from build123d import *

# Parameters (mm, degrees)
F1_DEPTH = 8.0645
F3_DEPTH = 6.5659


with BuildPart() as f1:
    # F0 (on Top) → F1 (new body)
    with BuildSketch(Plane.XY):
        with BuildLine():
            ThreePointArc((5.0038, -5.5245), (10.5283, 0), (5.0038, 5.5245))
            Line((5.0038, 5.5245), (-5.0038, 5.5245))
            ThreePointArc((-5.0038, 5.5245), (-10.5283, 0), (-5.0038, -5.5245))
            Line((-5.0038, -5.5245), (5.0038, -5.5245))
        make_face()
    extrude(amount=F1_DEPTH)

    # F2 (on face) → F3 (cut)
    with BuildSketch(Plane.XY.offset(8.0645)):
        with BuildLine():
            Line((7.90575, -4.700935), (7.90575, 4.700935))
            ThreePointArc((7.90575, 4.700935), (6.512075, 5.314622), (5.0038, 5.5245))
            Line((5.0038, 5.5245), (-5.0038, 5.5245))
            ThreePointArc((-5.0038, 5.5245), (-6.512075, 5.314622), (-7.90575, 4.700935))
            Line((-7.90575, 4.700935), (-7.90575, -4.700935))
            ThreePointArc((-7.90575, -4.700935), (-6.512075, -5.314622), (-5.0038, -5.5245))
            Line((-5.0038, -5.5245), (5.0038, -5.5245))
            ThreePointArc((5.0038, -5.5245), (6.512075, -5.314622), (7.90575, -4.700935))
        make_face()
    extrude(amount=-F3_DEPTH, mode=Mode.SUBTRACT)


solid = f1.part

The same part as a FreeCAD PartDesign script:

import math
import FreeCAD as App
import Part
import Sketcher

V = App.Vector
Q = App.Units.Quantity

doc = App.newDocument("Part")
body = doc.addObject("PartDesign::Body", "Body")

# Sketch on XY plane
sketch1 = body.newObject("Sketcher::SketchObject", "Sketch")
sketch1.AttachmentSupport = (doc.getObject("XY_Plane"), [""])
sketch1.MapMode = "FlatFace"
sketch1.addGeometry([
    Part.ArcOfCircle(Part.Circle(V(5, 0, 0), V(0, 0, 1), 6), math.radians(-90), math.radians(90)),
    Part.LineSegment(V(5, 6, 0), V(-5, 6, 0)),
    Part.ArcOfCircle(Part.Circle(V(-5, 0, 0), V(0, 0, 1), 6), math.radians(90), math.radians(270)),
    Part.LineSegment(V(-5, -6, 0), V(5, -6, 0)),
], False)
sketch1.addConstraint([
    Sketcher.Constraint("Tangent", 0, 2, 1, 1),
    Sketcher.Constraint("Tangent", 1, 2, 2, 1),
    Sketcher.Constraint("Tangent", 2, 2, 3, 1),
    Sketcher.Constraint("Tangent", 3, 2, 0, 1),
    Sketcher.Constraint("Horizontal", 1),
    Sketcher.Constraint("Horizontal", 3),
    Sketcher.Constraint("Symmetric", 0, 3, 2, 3, -1, 1),
    Sketcher.Constraint("Radius", 0, Q("0.2175 in")),
    Sketcher.Constraint("DistanceX", 1, 2, 1, 1, Q("0.394 in")),
])
pad1 = body.newObject("PartDesign::Pad", "Pad")
pad1.Profile = sketch1
pad1.Length = Q("0.3175 in")

# Sketch on XY plane
sketch2 = body.newObject("Sketcher::SketchObject", "Sketch001")
sketch2.AttachmentSupport = (doc.getObject("XY_Plane"), [""])
sketch2.MapMode = "FlatFace"
sketch2.AttachmentOffset = App.Placement(V(0, 0, 0.3175 * 25.4), App.Rotation())
sketch2.addGeometry([
    Part.LineSegment(V(7.9, -4.7, 0), V(7.9, 4.7, 0)),  # 0
    Part.ArcOfCircle(Part.Circle(V(5, 0, 0), V(0, 0, 1), 5.5), math.radians(58), math.radians(90)),  # 1
    Part.LineSegment(V(5, 5.5, 0), V(-5, 5.5, 0)),  # 2
    Part.ArcOfCircle(Part.Circle(V(-5, 0, 0), V(0, 0, 1), 5.5), math.radians(90), math.radians(122)),  # 3
    Part.LineSegment(V(-7.9, 4.7, 0), V(-7.9, -4.7, 0)),  # 4
    Part.ArcOfCircle(Part.Circle(V(-5, 0, 0), V(0, 0, 1), 5.5), math.radians(-122), math.radians(-90)),  # 5
    Part.LineSegment(V(-5, -5.5, 0), V(5, -5.5, 0)),  # 6
    Part.ArcOfCircle(Part.Circle(V(5, 0, 0), V(0, 0, 1), 5.5), math.radians(-90), math.radians(-58)),  # 7
], False)
sketch2.addConstraint([
    Sketcher.Constraint("Coincident", 0, 2, 1, 1),
    Sketcher.Constraint("Tangent", 1, 2, 2, 1),
    Sketcher.Constraint("Tangent", 2, 2, 3, 1),
    Sketcher.Constraint("Coincident", 3, 2, 4, 1),
    Sketcher.Constraint("Coincident", 4, 2, 5, 1),
    Sketcher.Constraint("Tangent", 5, 2, 6, 1),
    Sketcher.Constraint("Tangent", 6, 2, 7, 1),
    Sketcher.Constraint("Coincident", 7, 2, 0, 1),
    Sketcher.Constraint("Vertical", 0),
    Sketcher.Constraint("Horizontal", 2),
    Sketcher.Constraint("Vertical", 4),
    Sketcher.Constraint("Horizontal", 6),
    Sketcher.Constraint("Coincident", 5, 3, 3, 3),
    Sketcher.Constraint("Coincident", 7, 3, 1, 3),
    Sketcher.Constraint("Equal", 1, 3),
    Sketcher.Constraint("Equal", 3, 5),
    Sketcher.Constraint("Symmetric", 1, 3, 3, 3, -1, 1),
    Sketcher.Constraint("Horizontal", 0, 2, 3, 2),
    Sketcher.Constraint("Radius", 1, Q("0.2175001 in")),
    Sketcher.Constraint("DistanceX", 2, 2, 2, 1, Q("0.394 in")),
    Sketcher.Constraint("DistanceY", 0, 1, 0, 2, 9.40187),
])
pocket1 = body.newObject("PartDesign::Pocket", "Pocket")
pocket1.Profile = sketch2
pocket1.Length = Q("0.2585 in")

doc.recompute()
